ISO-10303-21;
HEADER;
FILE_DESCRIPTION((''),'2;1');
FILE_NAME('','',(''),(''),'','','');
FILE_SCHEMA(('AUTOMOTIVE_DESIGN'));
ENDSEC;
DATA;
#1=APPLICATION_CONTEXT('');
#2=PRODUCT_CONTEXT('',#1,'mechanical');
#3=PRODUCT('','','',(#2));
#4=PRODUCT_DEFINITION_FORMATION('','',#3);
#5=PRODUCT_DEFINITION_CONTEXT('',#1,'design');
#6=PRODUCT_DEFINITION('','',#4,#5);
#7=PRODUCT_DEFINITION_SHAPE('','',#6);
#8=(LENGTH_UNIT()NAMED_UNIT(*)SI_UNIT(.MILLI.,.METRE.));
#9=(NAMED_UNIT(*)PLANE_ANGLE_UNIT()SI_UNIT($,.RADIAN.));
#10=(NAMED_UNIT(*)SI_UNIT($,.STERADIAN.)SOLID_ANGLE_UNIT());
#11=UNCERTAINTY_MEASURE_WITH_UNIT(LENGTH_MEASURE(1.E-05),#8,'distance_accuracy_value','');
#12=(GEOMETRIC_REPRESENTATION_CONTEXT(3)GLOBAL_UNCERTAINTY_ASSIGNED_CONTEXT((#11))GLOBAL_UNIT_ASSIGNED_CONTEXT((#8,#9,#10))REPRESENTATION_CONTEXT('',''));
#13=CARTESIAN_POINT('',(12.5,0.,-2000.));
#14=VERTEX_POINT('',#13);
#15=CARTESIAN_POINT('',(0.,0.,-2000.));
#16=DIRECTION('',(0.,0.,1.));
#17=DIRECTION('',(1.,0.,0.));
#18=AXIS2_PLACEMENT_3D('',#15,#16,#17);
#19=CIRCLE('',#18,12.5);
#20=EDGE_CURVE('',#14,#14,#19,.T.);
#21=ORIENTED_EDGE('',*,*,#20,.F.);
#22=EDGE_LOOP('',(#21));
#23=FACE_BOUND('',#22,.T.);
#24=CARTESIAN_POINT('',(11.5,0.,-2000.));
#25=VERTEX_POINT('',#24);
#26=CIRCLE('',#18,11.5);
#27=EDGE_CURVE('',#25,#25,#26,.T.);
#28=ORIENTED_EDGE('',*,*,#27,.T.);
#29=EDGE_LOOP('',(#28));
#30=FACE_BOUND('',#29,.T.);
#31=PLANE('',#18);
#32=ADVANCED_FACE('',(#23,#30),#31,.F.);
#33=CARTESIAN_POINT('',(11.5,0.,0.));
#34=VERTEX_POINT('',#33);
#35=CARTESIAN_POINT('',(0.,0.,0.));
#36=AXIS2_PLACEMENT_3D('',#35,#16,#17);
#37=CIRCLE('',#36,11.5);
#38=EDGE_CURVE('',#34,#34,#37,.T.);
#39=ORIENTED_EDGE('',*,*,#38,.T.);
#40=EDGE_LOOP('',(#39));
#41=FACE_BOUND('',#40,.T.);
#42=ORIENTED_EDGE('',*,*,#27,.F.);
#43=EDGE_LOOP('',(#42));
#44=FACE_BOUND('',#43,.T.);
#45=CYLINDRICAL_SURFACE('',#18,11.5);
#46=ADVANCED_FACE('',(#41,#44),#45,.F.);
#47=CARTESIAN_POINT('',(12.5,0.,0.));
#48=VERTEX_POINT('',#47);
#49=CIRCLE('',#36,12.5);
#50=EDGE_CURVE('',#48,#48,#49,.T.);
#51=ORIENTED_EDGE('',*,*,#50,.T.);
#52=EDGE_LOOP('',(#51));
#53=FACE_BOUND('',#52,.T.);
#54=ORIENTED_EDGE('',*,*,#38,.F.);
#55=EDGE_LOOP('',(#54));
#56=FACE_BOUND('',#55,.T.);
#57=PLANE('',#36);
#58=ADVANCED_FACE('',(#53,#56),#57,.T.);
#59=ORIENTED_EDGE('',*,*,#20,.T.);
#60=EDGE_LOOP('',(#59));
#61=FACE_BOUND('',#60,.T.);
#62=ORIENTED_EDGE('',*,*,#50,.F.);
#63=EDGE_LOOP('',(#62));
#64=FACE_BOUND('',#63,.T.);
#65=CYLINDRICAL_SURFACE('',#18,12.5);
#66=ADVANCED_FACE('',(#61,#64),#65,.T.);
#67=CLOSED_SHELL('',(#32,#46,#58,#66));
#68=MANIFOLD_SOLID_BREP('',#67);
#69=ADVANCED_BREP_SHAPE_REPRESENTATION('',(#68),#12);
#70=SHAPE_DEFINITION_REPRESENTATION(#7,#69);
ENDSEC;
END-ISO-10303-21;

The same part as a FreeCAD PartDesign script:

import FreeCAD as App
import Part
import Sketcher

doc = App.newDocument("Part")
body = doc.addObject("PartDesign::Body", "Body")

# Sketch on XY plane
sketch1 = body.newObject("Sketcher::SketchObject", "Sketch")
sketch1.AttachmentSupport = (doc.getObject("XY_Plane"), [""])
sketch1.MapMode = "FlatFace"
sketch1.addGeometry(Part.Circle(App.Vector(0, 0, 0), App.Vector(0, 0, 1), 12), False)
sketch1.addGeometry(Part.Circle(App.Vector(0, 0, 0), App.Vector(0, 0, 1), 12), False)
sketch1.addConstraint(Sketcher.Constraint("Coincident", 0, 3, -1, 1))
sketch1.addConstraint(Sketcher.Constraint("Coincident", 1, 3, -1, 1))
sketch1.addConstraint(Sketcher.Constraint("Diameter", 0, 25.0))
sketch1.addConstraint(Sketcher.Constraint("Diameter", 1, 23.0))
pad1 = body.newObject("PartDesign::Pad", "Pad")
pad1.Profile = sketch1
pad1.Length = 2000
pad1.Reversed = True

doc.recompute()
